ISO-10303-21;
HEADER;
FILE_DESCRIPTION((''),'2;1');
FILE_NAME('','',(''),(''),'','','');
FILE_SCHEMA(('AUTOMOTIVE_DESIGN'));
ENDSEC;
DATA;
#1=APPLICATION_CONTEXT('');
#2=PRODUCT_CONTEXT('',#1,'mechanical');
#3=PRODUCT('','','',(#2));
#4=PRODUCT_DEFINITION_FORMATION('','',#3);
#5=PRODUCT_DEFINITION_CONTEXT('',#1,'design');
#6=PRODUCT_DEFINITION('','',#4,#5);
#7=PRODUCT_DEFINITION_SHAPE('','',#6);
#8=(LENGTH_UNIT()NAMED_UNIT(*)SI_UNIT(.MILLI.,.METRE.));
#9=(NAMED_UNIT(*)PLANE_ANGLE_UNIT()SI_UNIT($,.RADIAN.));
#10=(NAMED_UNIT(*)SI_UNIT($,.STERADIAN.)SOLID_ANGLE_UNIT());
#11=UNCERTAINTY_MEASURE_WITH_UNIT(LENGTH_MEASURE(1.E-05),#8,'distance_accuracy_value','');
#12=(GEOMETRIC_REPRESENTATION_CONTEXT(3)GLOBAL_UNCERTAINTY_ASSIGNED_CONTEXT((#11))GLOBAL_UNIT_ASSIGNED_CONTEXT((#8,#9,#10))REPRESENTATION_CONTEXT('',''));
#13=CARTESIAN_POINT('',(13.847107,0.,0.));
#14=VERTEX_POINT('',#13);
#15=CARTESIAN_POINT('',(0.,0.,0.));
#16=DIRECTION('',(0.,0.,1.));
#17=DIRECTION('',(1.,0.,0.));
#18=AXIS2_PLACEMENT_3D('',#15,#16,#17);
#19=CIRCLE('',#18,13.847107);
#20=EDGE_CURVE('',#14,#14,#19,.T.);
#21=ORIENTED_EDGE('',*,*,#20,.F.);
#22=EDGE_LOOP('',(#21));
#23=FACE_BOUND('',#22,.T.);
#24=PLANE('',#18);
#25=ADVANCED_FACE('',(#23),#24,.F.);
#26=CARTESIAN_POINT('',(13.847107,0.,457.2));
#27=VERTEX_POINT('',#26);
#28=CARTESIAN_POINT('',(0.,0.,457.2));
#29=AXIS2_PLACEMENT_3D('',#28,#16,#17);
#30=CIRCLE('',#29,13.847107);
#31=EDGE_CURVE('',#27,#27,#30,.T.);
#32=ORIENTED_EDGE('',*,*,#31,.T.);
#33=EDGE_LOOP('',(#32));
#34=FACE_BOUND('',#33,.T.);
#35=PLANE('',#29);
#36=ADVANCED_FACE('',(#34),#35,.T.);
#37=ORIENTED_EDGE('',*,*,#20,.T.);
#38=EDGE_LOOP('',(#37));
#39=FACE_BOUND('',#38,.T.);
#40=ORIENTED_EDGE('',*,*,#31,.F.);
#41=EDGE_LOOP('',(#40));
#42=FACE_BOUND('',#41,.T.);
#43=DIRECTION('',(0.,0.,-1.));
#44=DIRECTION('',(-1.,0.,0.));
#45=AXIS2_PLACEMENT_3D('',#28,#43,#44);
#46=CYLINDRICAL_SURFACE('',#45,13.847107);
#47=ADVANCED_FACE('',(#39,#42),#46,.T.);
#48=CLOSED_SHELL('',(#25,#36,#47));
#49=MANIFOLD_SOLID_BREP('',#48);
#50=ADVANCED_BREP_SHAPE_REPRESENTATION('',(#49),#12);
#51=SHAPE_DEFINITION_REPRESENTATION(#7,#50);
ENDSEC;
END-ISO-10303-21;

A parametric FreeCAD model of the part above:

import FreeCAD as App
import Part
import Sketcher
from FreeCAD import Vector
Q = App.Units.Quantity

doc = App.newDocument("Part")
params = doc.addObject("Spreadsheet::Sheet", "Params")
for row, (alias, value) in enumerate([
    ("pad1_length", "18 in"),
], start=1):
    params.set(f"A{row}", alias)
    params.set(f"B{row}", "=" + value)
    params.setAlias(f"B{row}", alias)

body = doc.addObject("PartDesign::Body", "Body")

# Sketch on XY plane
sketch1 = body.newObject("Sketcher::SketchObject", "Sketch")
sketch1.AttachmentSupport = (doc.getObject("XY_Plane"), [""])
sketch1.MapMode = "FlatFace"
sketch1.addGeometry(Part.Circle(Vector(0, 0, 0), Vector(0, 0, 1), 14), False)
sketch1.addConstraint([
    Sketcher.Constraint("Coincident", 0, 3, -1, 1),
    Sketcher.Constraint("Diameter", 0, Q("27.694214 mm")),
])
pad1 = body.newObject("PartDesign::Pad", "Pad")
pad1.Profile = sketch1
pad1.setExpression("Length", "Params.pad1_length")

doc.recompute()
